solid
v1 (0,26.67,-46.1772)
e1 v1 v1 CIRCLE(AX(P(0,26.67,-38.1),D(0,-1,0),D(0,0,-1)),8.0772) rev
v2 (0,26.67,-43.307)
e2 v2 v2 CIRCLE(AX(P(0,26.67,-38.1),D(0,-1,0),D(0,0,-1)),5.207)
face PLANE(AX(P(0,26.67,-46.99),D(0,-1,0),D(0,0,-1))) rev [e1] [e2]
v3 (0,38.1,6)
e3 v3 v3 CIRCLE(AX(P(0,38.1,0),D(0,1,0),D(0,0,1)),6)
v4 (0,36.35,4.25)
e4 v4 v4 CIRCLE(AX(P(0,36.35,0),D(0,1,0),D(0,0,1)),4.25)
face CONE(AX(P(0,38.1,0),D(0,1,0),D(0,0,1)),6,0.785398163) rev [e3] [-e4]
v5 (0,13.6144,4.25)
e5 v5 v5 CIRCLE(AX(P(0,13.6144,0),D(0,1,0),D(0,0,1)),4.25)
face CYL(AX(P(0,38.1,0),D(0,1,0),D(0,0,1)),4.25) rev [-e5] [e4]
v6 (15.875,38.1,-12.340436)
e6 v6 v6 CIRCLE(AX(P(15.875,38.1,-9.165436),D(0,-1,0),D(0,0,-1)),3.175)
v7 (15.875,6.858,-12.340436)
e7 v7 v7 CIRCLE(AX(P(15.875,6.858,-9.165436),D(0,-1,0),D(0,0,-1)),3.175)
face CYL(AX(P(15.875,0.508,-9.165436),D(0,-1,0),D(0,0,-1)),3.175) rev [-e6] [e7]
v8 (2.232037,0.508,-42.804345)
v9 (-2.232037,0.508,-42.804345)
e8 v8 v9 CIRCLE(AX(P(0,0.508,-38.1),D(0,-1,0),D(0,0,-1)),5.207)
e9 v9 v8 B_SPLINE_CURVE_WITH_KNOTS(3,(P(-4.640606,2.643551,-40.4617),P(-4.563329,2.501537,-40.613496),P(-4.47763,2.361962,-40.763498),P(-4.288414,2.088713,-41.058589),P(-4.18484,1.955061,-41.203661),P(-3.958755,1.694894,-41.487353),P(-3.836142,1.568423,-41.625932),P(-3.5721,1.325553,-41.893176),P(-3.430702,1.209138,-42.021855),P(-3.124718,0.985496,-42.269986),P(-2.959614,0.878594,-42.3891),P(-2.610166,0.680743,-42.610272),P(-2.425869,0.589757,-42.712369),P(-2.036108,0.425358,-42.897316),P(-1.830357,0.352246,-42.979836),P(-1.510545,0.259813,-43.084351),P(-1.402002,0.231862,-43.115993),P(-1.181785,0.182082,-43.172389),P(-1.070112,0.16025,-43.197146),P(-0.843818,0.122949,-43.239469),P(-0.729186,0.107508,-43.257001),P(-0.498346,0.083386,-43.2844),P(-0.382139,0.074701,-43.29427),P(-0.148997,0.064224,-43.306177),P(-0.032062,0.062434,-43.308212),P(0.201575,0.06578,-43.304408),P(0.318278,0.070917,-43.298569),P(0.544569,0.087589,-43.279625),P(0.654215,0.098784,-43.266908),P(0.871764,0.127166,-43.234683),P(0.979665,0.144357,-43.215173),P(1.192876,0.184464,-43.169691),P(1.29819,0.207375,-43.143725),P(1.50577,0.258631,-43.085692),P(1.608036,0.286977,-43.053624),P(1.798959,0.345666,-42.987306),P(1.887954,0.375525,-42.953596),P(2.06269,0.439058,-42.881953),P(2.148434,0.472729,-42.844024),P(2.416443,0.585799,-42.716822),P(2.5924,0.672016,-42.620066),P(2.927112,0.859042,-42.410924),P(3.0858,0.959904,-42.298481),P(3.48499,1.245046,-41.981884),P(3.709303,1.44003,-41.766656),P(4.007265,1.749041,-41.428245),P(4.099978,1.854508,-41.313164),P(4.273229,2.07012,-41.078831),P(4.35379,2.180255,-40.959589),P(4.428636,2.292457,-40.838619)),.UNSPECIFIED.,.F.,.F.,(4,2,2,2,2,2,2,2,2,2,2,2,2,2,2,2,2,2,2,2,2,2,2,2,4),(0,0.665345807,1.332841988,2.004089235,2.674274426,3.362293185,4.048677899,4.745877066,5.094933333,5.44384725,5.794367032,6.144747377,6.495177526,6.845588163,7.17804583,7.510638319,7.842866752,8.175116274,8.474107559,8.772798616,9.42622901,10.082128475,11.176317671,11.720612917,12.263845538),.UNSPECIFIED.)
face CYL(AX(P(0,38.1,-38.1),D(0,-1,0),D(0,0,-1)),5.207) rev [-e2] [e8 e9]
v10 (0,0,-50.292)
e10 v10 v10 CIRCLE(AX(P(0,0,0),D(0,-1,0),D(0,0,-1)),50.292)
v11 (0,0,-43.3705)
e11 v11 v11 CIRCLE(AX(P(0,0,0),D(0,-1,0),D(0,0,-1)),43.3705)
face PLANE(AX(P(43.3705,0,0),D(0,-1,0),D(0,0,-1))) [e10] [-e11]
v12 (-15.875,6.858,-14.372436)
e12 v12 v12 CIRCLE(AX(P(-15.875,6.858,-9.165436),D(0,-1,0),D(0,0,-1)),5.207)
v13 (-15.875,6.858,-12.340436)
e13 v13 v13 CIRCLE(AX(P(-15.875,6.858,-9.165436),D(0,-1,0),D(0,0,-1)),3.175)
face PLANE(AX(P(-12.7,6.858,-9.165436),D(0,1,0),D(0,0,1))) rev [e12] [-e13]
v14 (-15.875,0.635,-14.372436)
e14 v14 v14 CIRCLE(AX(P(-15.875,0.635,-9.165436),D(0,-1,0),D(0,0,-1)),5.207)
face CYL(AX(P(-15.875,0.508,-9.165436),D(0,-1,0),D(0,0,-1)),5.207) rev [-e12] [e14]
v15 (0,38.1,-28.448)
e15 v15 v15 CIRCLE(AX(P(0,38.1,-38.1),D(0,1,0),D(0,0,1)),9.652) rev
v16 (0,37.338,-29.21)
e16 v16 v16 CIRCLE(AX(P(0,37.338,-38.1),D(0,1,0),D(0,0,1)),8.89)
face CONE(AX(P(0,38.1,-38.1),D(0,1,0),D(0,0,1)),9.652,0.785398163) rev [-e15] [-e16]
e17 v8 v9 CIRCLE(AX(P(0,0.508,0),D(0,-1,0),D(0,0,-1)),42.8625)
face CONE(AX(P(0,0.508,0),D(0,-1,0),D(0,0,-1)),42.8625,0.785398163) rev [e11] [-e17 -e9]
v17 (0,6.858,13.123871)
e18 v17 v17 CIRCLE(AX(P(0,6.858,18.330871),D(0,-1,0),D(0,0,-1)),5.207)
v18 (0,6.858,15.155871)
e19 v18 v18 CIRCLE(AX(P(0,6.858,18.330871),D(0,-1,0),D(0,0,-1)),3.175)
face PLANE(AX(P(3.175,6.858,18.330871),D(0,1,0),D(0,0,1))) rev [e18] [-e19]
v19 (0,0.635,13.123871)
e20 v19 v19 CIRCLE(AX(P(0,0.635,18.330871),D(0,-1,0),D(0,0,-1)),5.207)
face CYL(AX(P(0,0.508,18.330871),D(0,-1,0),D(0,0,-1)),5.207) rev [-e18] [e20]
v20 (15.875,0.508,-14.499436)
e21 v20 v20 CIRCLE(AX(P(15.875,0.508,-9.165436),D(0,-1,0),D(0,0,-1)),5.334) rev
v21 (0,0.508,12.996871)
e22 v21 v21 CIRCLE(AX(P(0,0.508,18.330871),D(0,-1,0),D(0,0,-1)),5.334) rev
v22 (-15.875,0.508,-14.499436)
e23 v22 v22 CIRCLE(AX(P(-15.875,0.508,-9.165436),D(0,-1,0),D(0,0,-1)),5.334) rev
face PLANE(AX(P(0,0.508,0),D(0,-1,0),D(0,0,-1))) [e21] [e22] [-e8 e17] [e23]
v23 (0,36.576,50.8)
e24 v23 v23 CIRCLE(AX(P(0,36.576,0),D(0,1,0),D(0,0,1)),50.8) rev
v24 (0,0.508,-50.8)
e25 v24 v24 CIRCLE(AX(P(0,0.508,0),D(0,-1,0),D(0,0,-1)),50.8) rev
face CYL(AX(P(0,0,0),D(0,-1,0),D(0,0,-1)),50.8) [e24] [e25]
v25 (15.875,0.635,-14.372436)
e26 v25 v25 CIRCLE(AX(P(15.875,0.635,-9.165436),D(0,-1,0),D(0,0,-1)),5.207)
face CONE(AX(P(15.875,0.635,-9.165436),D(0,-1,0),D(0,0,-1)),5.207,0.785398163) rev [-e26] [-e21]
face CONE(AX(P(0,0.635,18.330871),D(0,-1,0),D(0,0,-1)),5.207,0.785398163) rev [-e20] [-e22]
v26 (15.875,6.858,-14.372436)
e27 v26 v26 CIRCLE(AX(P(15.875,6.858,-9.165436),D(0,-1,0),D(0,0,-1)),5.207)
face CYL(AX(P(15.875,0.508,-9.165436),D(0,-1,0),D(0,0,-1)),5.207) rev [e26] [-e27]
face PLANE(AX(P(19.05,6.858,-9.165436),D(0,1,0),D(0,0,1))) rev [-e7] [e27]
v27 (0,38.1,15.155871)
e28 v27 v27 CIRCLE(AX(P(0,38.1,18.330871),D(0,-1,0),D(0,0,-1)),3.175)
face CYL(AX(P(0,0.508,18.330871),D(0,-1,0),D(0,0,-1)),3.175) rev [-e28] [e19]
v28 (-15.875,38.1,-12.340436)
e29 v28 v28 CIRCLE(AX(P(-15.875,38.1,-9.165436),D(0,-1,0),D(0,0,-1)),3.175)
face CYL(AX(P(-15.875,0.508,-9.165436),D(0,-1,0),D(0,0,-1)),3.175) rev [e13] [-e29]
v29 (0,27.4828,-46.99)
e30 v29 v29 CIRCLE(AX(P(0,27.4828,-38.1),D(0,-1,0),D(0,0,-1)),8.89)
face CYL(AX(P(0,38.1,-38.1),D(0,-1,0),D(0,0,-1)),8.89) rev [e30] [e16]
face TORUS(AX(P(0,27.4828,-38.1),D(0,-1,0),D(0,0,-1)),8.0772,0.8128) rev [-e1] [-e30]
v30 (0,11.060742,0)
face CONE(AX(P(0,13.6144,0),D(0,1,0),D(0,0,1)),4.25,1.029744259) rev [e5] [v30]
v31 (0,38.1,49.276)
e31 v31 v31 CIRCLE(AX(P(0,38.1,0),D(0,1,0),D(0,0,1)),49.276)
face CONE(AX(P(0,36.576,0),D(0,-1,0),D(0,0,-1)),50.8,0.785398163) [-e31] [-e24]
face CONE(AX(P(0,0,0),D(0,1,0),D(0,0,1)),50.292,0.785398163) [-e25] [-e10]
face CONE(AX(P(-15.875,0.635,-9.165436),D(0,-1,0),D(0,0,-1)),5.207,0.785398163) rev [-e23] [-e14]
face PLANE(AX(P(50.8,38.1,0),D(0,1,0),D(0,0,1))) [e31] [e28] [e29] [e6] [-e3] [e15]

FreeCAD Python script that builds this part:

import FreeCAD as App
import Part
import Sketcher

V = App.Vector
Q = App.Units.Quantity


def edges_at(feature, points):
    """Names of the edges that pass closest to the given points."""
    edges = feature.Shape.Edges
    near = lambda p: min(range(len(edges)), key=lambda i: edges[i].distToShape(Part.Vertex(*p))[0])
    return sorted({f"Edge{near(p) + 1}" for p in points})

doc = App.newDocument("Part")
body = doc.addObject("PartDesign::Body", "Body")

# Sketch on XY plane
sketch1 = body.newObject("Sketcher::SketchObject", "Sketch")
sketch1.AttachmentSupport = (doc.getObject("XY_Plane"), [""])
sketch1.MapMode = "FlatFace"
sketch1.addGeometry([
    Part.LineSegment(V(0, 0.5, 0), V(42.9, 0.5, 0)),  # 0
    Part.LineSegment(V(42.9, 0.5, 0), V(43.4, 0, 0)),  # 1
    Part.LineSegment(V(43.4, 0, 0), V(50.8, 0, 0)),  # 2
    Part.LineSegment(V(50.8, 0, 0), V(50.8, 38.1, 0)),  # 3
    Part.LineSegment(V(50.8, 38.1, 0), V(0, 38.1, 0)),  # 4
    Part.LineSegment(V(0, 38.1, 0), V(0, 0.5, 0)),  # 5
], False)
sketch1.addConstraint([
    Sketcher.Constraint("Coincident", 0, 2, 1, 1),
    Sketcher.Constraint("Coincident", 1, 2, 2, 1),
    Sketcher.Constraint("Coincident", 2, 2, 3, 1),
    Sketcher.Constraint("Coincident", 3, 2, 4, 1),
    Sketcher.Constraint("Coincident", 4, 2, 5, 1),
    Sketcher.Constraint("Coincident", 5, 2, 0, 1),
    Sketcher.Constraint("Horizontal", 0),
    Sketcher.Constraint("Horizontal", 2),
    Sketcher.Constraint("Vertical", 3),
    Sketcher.Constraint("Horizontal", 4),
    Sketcher.Constraint("Vertical", 5),
    Sketcher.Constraint("PointOnObject", 1, 2, -1),
    Sketcher.Constraint("PointOnObject", 4, 2, -2),
    Sketcher.Constraint("DistanceX", 4, 2, 4, 1, Q("2 in")),
    Sketcher.Constraint("DistanceY", 3, 1, 3, 2, Q("1.5 in")),
    Sketcher.Constraint("Angle", 1, Q("-45 deg")),
    Sketcher.Constraint("DistanceY", 5, 2, 5, 1, Q("1.48 in")),
    Sketcher.Constraint("DistanceX", 0, 1, 0, 2, Q("1.6875 in")),
])
revolution = body.newObject("PartDesign::Revolution", "Revolution")
revolution.Profile = sketch1
revolution.ReferenceAxis = (sketch1, ["V_Axis"])
revolution.Angle = 360

# Sketch on YZ plane
sketch2 = body.newObject("Sketcher::SketchObject", "Sketch001")
sketch2.AttachmentSupport = (doc.getObject("YZ_Plane"), [""])
sketch2.MapMode = "FlatFace"
sketch2.addGeometry([
    Part.LineSegment(V(38.1, -47, 0), V(38.1, -38.1, 0)),  # 0
    Part.LineSegment(V(38.1, -38.1, 0), V(0, -38.1, 0)),  # 1
    Part.LineSegment(V(0, -38.1, 0), V(0, -43.3, 0)),  # 2
    Part.LineSegment(V(0, -43.3, 0), V(26.7, -43.3, 0)),  # 3
    Part.LineSegment(V(26.7, -43.3, 0), V(26.7, -47, 0)),  # 4
    Part.LineSegment(V(26.7, -47, 0), V(38.1, -47, 0)),  # 5
], False)
sketch2.addGeometry(Part.LineSegment(V(0, -38.1, 0), V(38.1, -38.1, 0)), True)  # axis
sketch2.addConstraint([
    Sketcher.Constraint("Coincident", 0, 2, 1, 1),
    Sketcher.Constraint("Coincident", 1, 2, 2, 1),
    Sketcher.Constraint("Coincident", 2, 2, 3, 1),
    Sketcher.Constraint("Coincident", 3, 2, 4, 1),
    Sketcher.Constraint("Coincident", 4, 2, 5, 1),
    Sketcher.Constraint("Coincident", 5, 2, 0, 1),
    Sketcher.Constraint("Vertical", 0),
    Sketcher.Constraint("Horizontal", 1),
    Sketcher.Constraint("Vertical", 2),
    Sketcher.Constraint("Horizontal", 3),
    Sketcher.Constraint("Vertical", 4),
    Sketcher.Constraint("Horizontal", 5),
    Sketcher.Constraint("Horizontal", 6),
    Sketcher.Constraint("Coincident", 6, 1, 1, 2),
    Sketcher.Constraint("PointOnObject", 1, 2, -2),
    Sketcher.Constraint("Vertical", 5, 2, 6, 2),
    Sketcher.Constraint("DistanceX", 1, 2, 1, 1, Q("1.5 in")),
    Sketcher.Constraint("DistanceX", 3, 1, 3, 2, Q("1.05 in")),
    Sketcher.Constraint("DistanceY", 0, 1, 0, 2, Q("0.35 in")),
    Sketcher.Constraint("DistanceY", 0, 2, -1, 1, Q("1.5 in")),
    Sketcher.Constraint("DistanceY", 2, 2, 2, 1, Q("0.205 in")),
])
groove = body.newObject("PartDesign::Groove", "Groove")
groove.Profile = sketch2
groove.ReferenceAxis = (sketch2, ["Axis0"])
groove.Angle = 360

# Sketch on XZ plane
sketch3 = body.newObject("Sketcher::SketchObject", "Sketch002")
sketch3.AttachmentSupport = (doc.getObject("XZ_Plane"), [""])
sketch3.MapMode = "FlatFace"
sketch3.AttachmentOffset = App.Placement(V(0, 0, -1.5 * 25.4), App.Rotation())
sketch3.addGeometry(Part.Circle(V(0, 0, 0), V(0, 0, 1), 4.2), False)
sketch3.addConstraint([
    Sketcher.Constraint("Coincident", 0, 3, -1, 1),
    Sketcher.Constraint("Diameter", 0, 8.5),
])
doc.recompute()
hole = body.newObject("PartDesign::Hole", "Hole")
hole.Profile = sketch3
hole.ThreadType = "None"
hole.Diameter = 8.5
hole.DepthType = "Dimension"
hole.Depth = Q("0.964 in")
hole.DrillPoint = "Angled"
hole.DrillPointAngle = 118
hole.HoleCutType = "Countersink"
hole.HoleCutDiameter = 12
hole.HoleCutCountersinkAngle = 90
hole.Reversed = True

# Sketch on XZ plane
sketch4 = body.newObject("Sketcher::SketchObject", "Sketch003")
sketch4.AttachmentSupport = (doc.getObject("XZ_Plane"), [""])
sketch4.MapMode = "FlatFace"
sketch4.AttachmentOffset = App.Placement(V(0, 0, -0.02 * 25.4), App.Rotation())
sketch4.addGeometry([
    Part.Circle(V(0, 18.3, 0), V(0, 0, 1), 3.2),
    Part.Circle(V(15.9, -9.2, 0), V(0, 0, 1), 3.2),
    Part.Circle(V(-15.9, -9.2, 0), V(0, 0, 1), 3.2),
], False)
sketch4.addConstraint([
    Sketcher.Constraint("Equal", 0, 1),
    Sketcher.Constraint("Equal", 1, 2),
    Sketcher.Constraint("Symmetric", 1, 3, 2, 3, -2),
    Sketcher.Constraint("PointOnObject", 0, 3, -2),
    Sketcher.Constraint("Diameter", 0, Q("0.25 in")),
    Sketcher.Constraint("DistanceX", 2, 3, 1, 3, Q("1.25 in")),
    Sketcher.Constraint("DistanceY", -1, 1, 0, 3, 18.330871),
    Sketcher.Constraint("DistanceY", 1, 3, -1, 1, 9.165436),
])
doc.recompute()
hole2 = body.newObject("PartDesign::Hole", "Hole001")
hole2.Profile = sketch4
hole2.ThreadType = "None"
hole2.Diameter = Q("0.25 in")
hole2.DepthType = "Dimension"
hole2.Depth = Q("1.48 in")
hole2.DrillPoint = "Angled"
hole2.DrillPointAngle = 118
hole2.HoleCutType = "Counterbore"
hole2.HoleCutDiameter = Q("0.41 in")
hole2.HoleCutDepth = Q("0.25 in")
doc.recompute()

chamfer = body.newObject("PartDesign::Chamfer", "Chamfer")
chamfer.Base = (hole2, edges_at(hole2, [(0, 38.1, 50.8)]))
chamfer.Size = Q("0.06 in")
doc.recompute()

chamfer2 = body.newObject("PartDesign::Chamfer", "Chamfer001")
chamfer2.Base = (chamfer, edges_at(chamfer, [(0, 38.1, -29.21)]))
chamfer2.Size = Q("0.03 in")
doc.recompute()

chamfer3 = body.newObject("PartDesign::Chamfer", "Chamfer002")
chamfer3.Base = (chamfer2, edges_at(chamfer2, [(0, 0, 50.8)]))
chamfer3.Size = Q("0.02 in")
doc.recompute()

chamfer4 = body.newObject("PartDesign::Chamfer", "Chamfer003")
chamfer4.Base = (chamfer3, edges_at(chamfer3, [(-21.082, 0.508, -9.165), (10.668, 0.508, -9.165), (-5.207, 0.508, 18.331)]))
chamfer4.Size = Q("0.005 in")
doc.recompute()

fillet = body.newObject("PartDesign::Fillet", "Fillet")
fillet.Base = (chamfer4, edges_at(chamfer4, [(0, 26.67, -29.21)]))
fillet.Radius = Q("0.032 in")

doc.recompute()
